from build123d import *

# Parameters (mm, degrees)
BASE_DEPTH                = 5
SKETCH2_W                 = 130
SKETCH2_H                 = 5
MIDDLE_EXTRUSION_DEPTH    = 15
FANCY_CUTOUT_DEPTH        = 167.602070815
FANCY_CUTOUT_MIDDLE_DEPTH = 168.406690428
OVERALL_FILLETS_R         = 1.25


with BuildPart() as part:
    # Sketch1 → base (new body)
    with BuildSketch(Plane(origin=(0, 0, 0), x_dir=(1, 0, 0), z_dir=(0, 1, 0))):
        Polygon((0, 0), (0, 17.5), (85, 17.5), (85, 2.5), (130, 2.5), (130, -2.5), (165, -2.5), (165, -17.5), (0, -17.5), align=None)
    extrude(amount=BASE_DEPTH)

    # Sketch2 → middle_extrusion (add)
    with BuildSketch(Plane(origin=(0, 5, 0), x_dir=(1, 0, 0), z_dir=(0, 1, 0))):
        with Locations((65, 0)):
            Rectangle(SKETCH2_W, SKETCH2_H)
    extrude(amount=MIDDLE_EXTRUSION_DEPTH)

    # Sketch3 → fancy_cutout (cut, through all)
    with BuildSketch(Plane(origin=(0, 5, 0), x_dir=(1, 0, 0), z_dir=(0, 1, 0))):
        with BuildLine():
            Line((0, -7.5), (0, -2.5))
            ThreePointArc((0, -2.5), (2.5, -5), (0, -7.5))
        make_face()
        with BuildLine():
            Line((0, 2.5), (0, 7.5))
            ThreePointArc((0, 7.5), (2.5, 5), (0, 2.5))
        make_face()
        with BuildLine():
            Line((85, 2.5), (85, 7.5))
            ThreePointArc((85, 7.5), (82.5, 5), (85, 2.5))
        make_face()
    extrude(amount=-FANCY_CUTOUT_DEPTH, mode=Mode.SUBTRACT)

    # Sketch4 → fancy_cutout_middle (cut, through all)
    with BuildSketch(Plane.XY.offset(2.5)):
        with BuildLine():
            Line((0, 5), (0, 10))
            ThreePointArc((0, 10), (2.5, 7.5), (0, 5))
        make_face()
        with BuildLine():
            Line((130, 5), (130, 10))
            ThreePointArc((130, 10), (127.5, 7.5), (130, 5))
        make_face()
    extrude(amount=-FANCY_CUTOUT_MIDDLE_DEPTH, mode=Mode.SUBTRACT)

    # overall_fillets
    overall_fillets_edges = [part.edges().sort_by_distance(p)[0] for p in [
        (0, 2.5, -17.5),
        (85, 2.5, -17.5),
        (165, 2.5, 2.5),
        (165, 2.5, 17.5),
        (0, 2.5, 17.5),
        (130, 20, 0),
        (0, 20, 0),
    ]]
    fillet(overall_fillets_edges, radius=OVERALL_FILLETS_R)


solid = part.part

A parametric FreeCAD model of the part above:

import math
import FreeCAD as App
import Part
import Sketcher

V = App.Vector
Q = App.Units.Quantity


def edges_at(feature, points):
    """Names of the edges that pass closest to the given points."""
    edges = feature.Shape.Edges
    near = lambda p: min(range(len(edges)), key=lambda i: edges[i].distToShape(Part.Vertex(*p))[0])
    return sorted({f"Edge{near(p) + 1}" for p in points})


def add_polygon(sketch, points):
    """Adds a closed chain of lines whose ends are joined by coincident constraints."""
    first, n = sketch.GeometryCount, len(points)
    for a, b in zip(points, points[1:] + points[:1]):
        sketch.addGeometry(Part.LineSegment(App.Vector(*a, 0), App.Vector(*b, 0)), False)
    for i in range(n):
        sketch.addConstraint(Sketcher.Constraint("Coincident", first + i, 2, first + (i + 1) % n, 1))

doc = App.newDocument("Part")
body = doc.addObject("PartDesign::Body", "Body")

# Sketch on XZ plane
sketch1 = body.newObject("Sketcher::SketchObject", "Sketch")
sketch1.AttachmentSupport = (doc.getObject("XZ_Plane"), [""])
sketch1.MapMode = "FlatFace"
add_polygon(sketch1, [(0, -18), (0, 18), (165, 18), (165, 2), (130, 2), (130, -2), (85, -2), (85, -18)])  # lines 0-7
sketch1.addConstraint([
    Sketcher.Constraint("Vertical", 0),
    Sketcher.Constraint("Horizontal", 1),
    Sketcher.Constraint("Vertical", 2),
    Sketcher.Constraint("Horizontal", 3),
    Sketcher.Constraint("Vertical", 4),
    Sketcher.Constraint("Horizontal", 5),
    Sketcher.Constraint("Vertical", 6),
    Sketcher.Constraint("Horizontal", 7),
    Sketcher.Constraint("Symmetric", 0, 2, 7, 2, -1, 1),
    Sketcher.Constraint("Equal", 3, 0),
    Sketcher.Constraint("Equal", 2, 6),
    Sketcher.Constraint("DistanceX", 1, 1, 1, 2, Q("165 mm")),
    Sketcher.Constraint("DistanceX", 3, 2, 3, 1, Q("35 mm")),
    Sketcher.Constraint("DistanceX", 5, 2, 5, 1, Q("45 mm")),
    Sketcher.Constraint("DistanceY", 2, 2, 2, 1, Q("15 mm")),
])
pad1 = body.newObject("PartDesign::Pad", "Pad")
pad1.Profile = sketch1
pad1.Length = 5
pad1.Reversed = True

# Sketch on XZ plane
sketch2 = body.newObject("Sketcher::SketchObject", "Sketch001")
sketch2.AttachmentSupport = (doc.getObject("XZ_Plane"), [""])
sketch2.MapMode = "FlatFace"
sketch2.AttachmentOffset = App.Placement(V(0, 0, -5), App.Rotation())
add_polygon(sketch2, [(0, -2), (0, 2), (130, 2), (130, -2)])  # lines 0-3
sketch2.addConstraint([
    Sketcher.Constraint("Vertical", 0),
    Sketcher.Constraint("Horizontal", 1),
    Sketcher.Constraint("Vertical", 2),
    Sketcher.Constraint("Horizontal", 3),
    Sketcher.Constraint("Symmetric", 0, 2, 3, 2, -1, 1),
    Sketcher.Constraint("DistanceX", 1, 1, 1, 2, Q("130 mm")),
    Sketcher.Constraint("DistanceY", 0, 1, 0, 2, Q("5 mm")),
])
pad2 = body.newObject("PartDesign::Pad", "Pad001")
pad2.Profile = sketch2
pad2.Length = 15
pad2.Reversed = True

# Sketch on XZ plane
sketch3 = body.newObject("Sketcher::SketchObject", "Sketch002")
sketch3.AttachmentSupport = (doc.getObject("XZ_Plane"), [""])
sketch3.MapMode = "FlatFace"
sketch3.AttachmentOffset = App.Placement(V(0, 0, -5), App.Rotation())
sketch3.addGeometry([
    Part.LineSegment(V(0, 2.5, 0), V(0, 7.5, 0)),  # 0
    Part.ArcOfCircle(Part.Circle(V(0, 5, 0), V(0, 0, 1), 2.5), math.radians(-90), math.radians(90)),  # 1
    Part.LineSegment(V(0, -7.5, 0), V(0, -2.5, 0)),  # 2
    Part.ArcOfCircle(Part.Circle(V(0, -5, 0), V(0, 0, 1), 2.5), math.radians(-90), math.radians(90)),  # 3
    Part.LineSegment(V(85, -2.5, 0), V(85, -7.5, 0)),  # 4
    Part.ArcOfCircle(Part.Circle(V(85, -5, 0), V(0, 0, 1), 2.5), math.radians(90), math.radians(270)),  # 5
], False)
sketch3.addConstraint([
    Sketcher.Constraint("Coincident", 0, 1, 1, 1),
    Sketcher.Constraint("Coincident", 1, 2, 0, 2),
    Sketcher.Constraint("Coincident", 2, 1, 3, 1),
    Sketcher.Constraint("Coincident", 3, 2, 2, 2),
    Sketcher.Constraint("Coincident", 4, 1, 5, 1),
    Sketcher.Constraint("Coincident", 5, 2, 4, 2),
    Sketcher.Constraint("Vertical", 0),
    Sketcher.Constraint("Vertical", 2),
    Sketcher.Constraint("Vertical", 4),
    Sketcher.Constraint("Equal", 1, 3),
    Sketcher.Constraint("Equal", 3, 5),
    Sketcher.Constraint("Symmetric", 1, 3, 3, 3, -1, 1),
    Sketcher.Constraint("PointOnObject", 1, 3, -2),
    Sketcher.Constraint("PointOnObject", 0, 1, -2),
    Sketcher.Constraint("PointOnObject", 2, 1, -2),
    Sketcher.Constraint("Horizontal", 3, 3, 5, 3),
    Sketcher.Constraint("Vertical", 5, 3, 4, 1),
    Sketcher.Constraint("Radius", 1, Q("2.5 mm")),
    Sketcher.Constraint("DistanceY", -1, 1, 1, 3, Q("5 mm")),
    Sketcher.Constraint("DistanceX", -1, 1, 5, 3, Q("85 mm")),
])
pocket1 = body.newObject("PartDesign::Pocket", "Pocket")
pocket1.Profile = sketch3
pocket1.Type = "ThroughAll"
pocket1.Reversed = True

# Sketch on XY plane
sketch4 = body.newObject("Sketcher::SketchObject", "Sketch003")
sketch4.AttachmentSupport = (doc.getObject("XY_Plane"), [""])
sketch4.MapMode = "FlatFace"
sketch4.AttachmentOffset = App.Placement(V(0, 0, 2.5), App.Rotation())
sketch4.addGeometry([
    Part.LineSegment(V(0, 10, 0), V(0, 5, 0)),
    Part.ArcOfCircle(Part.Circle(V(0, 7.5, 0), V(0, 0, 1), 2.5), math.radians(-90), math.radians(90)),
    Part.LineSegment(V(130, 5, 0), V(130, 10, 0)),
    Part.ArcOfCircle(Part.Circle(V(130, 7.5, 0), V(0, 0, 1), 2.5), math.radians(90), math.radians(270)),
], False)
sketch4.addConstraint([
    Sketcher.Constraint("Coincident", 0, 1, 1, 2),
    Sketcher.Constraint("Coincident", 1, 1, 0, 2),
    Sketcher.Constraint("Coincident", 2, 1, 3, 2),
    Sketcher.Constraint("Coincident", 3, 1, 2, 2),
    Sketcher.Constraint("Vertical", 0),
    Sketcher.Constraint("Vertical", 2),
    Sketcher.Constraint("Equal", 1, 3),
    Sketcher.Constraint("PointOnObject", 1, 3, -2),
    Sketcher.Constraint("PointOnObject", 0, 1, -2),
    Sketcher.Constraint("Horizontal", 1, 3, 3, 3),
    Sketcher.Constraint("Vertical", 3, 3, 2, 1),
    Sketcher.Constraint("Radius", 1, Q("2.5 mm")),
    Sketcher.Constraint("DistanceX", -1, 1, 3, 3, Q("130 mm")),
    Sketcher.Constraint("DistanceY", -1, 1, 0, 1, Q("10 mm")),
])
pocket2 = body.newObject("PartDesign::Pocket", "Pocket001")
pocket2.Profile = sketch4
pocket2.Type = "ThroughAll"
doc.recompute()

fillet = body.newObject("PartDesign::Fillet", "Fillet")
fillet.Base = (pocket2, edges_at(pocket2, [
    (0, 2.5, -17.5),
    (85, 2.5, -17.5),
    (165, 2.5, 2.5),
    (165, 2.5, 17.5),
    (0, 2.5, 17.5),
    (130, 20, 0),
    (0, 20, 0),
]))
fillet.Radius = 1.25

doc.recompute()
